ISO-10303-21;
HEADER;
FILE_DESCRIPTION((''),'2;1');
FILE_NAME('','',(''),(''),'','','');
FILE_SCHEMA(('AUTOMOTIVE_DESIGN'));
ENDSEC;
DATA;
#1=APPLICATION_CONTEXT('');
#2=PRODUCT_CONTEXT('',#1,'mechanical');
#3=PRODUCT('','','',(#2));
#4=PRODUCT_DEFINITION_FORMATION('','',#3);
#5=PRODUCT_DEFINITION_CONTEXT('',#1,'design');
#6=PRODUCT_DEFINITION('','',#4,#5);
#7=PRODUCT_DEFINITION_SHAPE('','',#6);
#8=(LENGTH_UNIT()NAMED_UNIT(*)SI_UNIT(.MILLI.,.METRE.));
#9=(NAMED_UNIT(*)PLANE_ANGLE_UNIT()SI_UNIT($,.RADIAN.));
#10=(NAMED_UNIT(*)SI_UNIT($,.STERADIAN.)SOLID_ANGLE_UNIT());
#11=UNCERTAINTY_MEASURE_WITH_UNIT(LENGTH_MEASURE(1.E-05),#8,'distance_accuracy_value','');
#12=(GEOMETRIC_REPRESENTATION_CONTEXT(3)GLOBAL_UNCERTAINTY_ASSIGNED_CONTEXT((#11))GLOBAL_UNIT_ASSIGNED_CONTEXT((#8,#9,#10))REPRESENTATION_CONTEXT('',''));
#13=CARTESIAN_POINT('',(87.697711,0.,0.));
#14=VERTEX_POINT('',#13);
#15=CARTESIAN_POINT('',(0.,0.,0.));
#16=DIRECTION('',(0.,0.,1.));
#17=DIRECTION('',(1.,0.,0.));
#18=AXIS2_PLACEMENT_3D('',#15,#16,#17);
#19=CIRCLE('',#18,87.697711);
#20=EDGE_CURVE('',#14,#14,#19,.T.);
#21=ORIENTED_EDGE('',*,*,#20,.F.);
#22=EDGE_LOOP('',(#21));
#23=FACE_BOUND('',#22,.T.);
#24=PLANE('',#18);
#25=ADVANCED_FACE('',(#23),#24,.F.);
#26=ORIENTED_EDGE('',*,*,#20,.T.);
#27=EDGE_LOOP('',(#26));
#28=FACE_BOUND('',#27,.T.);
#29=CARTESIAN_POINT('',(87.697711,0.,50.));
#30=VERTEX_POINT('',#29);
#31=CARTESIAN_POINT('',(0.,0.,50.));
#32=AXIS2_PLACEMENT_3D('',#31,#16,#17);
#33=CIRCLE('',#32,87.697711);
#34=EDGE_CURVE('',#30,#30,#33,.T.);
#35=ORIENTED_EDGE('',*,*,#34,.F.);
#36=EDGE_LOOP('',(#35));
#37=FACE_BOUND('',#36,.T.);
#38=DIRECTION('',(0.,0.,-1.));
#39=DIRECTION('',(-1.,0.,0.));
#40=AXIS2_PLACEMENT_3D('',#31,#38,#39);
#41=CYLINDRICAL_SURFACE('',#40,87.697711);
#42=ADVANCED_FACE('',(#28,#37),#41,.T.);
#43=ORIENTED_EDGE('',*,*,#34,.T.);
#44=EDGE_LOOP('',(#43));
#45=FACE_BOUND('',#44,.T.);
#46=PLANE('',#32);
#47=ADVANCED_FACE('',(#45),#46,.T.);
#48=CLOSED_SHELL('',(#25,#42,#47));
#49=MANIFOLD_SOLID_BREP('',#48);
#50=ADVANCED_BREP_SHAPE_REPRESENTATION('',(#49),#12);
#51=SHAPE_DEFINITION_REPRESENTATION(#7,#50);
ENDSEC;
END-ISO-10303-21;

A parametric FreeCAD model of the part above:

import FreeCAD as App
import Part
import Sketcher
Q = App.Units.Quantity

doc = App.newDocument("Part")
body = doc.addObject("PartDesign::Body", "Body")

# Sketch on XY plane
sketch1 = body.newObject("Sketcher::SketchObject", "Sketch")
sketch1.AttachmentSupport = (doc.getObject("XY_Plane"), [""])
sketch1.MapMode = "FlatFace"
sketch1.addGeometry(Part.Circle(App.Vector(0, 0, 0), App.Vector(0, 0, 1), 87.697711), False)
sketch1.addConstraint(Sketcher.Constraint("Coincident", 0, 3, -1, 1))
sketch1.addConstraint(Sketcher.Constraint("Diameter", 0, Q("175.395423 mm")))
pad1 = body.newObject("PartDesign::Pad", "Pad")
pad1.Profile = sketch1
pad1.Length = 50

doc.recompute()
